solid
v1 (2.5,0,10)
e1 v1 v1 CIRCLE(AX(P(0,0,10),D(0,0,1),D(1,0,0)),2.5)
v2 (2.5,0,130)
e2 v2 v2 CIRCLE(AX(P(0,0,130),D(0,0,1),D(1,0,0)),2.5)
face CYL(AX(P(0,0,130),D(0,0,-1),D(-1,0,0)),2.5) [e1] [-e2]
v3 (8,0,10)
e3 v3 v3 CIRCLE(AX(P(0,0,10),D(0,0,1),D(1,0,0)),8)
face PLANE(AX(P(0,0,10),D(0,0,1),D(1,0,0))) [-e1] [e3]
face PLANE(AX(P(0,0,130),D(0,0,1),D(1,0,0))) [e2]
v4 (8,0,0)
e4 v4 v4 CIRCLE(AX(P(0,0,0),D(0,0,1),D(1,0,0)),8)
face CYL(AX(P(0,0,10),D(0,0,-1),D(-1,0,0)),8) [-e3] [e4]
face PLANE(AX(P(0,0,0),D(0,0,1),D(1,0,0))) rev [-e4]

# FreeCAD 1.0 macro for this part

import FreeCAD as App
import Part
import Sketcher
Q = App.Units.Quantity

doc = App.newDocument("Part")
body = doc.addObject("PartDesign::Body", "Body")

sketch1 = body.newObject("Sketcher::SketchObject", "Sketch")
sketch1.AttachmentSupport = (doc.getObject("XY_Plane"), [""])
sketch1.MapMode = "FlatFace"
sketch1.addGeometry(Part.Circle(App.Vector(0, 0, 0), App.Vector(0, 0, 1), 8), False)
sketch1.addConstraint([
    Sketcher.Constraint("Coincident", 0, 3, -1, 1),
    Sketcher.Constraint("Diameter", 0, Q("16 mm")),
])
pad1 = body.newObject("PartDesign::Pad", "Pad")
pad1.Profile = sketch1
pad1.Length = 10

sketch2 = body.newObject("Sketcher::SketchObject", "Sketch001")
sketch2.AttachmentSupport = (doc.getObject("XY_Plane"), [""])
sketch2.MapMode = "FlatFace"
sketch2.AttachmentOffset = App.Placement(App.Vector(0, 0, 10), App.Rotation())
sketch2.addGeometry(Part.Circle(App.Vector(0, 0, 0), App.Vector(0, 0, 1), 2.5), False)
sketch2.addConstraint([
    Sketcher.Constraint("Coincident", 0, 3, -1, 1),
    Sketcher.Constraint("Diameter", 0, Q("5 mm")),
])
pad2 = body.newObject("PartDesign::Pad", "Pad001")
pad2.Profile = sketch2
pad2.Length = 120

doc.recompute()
